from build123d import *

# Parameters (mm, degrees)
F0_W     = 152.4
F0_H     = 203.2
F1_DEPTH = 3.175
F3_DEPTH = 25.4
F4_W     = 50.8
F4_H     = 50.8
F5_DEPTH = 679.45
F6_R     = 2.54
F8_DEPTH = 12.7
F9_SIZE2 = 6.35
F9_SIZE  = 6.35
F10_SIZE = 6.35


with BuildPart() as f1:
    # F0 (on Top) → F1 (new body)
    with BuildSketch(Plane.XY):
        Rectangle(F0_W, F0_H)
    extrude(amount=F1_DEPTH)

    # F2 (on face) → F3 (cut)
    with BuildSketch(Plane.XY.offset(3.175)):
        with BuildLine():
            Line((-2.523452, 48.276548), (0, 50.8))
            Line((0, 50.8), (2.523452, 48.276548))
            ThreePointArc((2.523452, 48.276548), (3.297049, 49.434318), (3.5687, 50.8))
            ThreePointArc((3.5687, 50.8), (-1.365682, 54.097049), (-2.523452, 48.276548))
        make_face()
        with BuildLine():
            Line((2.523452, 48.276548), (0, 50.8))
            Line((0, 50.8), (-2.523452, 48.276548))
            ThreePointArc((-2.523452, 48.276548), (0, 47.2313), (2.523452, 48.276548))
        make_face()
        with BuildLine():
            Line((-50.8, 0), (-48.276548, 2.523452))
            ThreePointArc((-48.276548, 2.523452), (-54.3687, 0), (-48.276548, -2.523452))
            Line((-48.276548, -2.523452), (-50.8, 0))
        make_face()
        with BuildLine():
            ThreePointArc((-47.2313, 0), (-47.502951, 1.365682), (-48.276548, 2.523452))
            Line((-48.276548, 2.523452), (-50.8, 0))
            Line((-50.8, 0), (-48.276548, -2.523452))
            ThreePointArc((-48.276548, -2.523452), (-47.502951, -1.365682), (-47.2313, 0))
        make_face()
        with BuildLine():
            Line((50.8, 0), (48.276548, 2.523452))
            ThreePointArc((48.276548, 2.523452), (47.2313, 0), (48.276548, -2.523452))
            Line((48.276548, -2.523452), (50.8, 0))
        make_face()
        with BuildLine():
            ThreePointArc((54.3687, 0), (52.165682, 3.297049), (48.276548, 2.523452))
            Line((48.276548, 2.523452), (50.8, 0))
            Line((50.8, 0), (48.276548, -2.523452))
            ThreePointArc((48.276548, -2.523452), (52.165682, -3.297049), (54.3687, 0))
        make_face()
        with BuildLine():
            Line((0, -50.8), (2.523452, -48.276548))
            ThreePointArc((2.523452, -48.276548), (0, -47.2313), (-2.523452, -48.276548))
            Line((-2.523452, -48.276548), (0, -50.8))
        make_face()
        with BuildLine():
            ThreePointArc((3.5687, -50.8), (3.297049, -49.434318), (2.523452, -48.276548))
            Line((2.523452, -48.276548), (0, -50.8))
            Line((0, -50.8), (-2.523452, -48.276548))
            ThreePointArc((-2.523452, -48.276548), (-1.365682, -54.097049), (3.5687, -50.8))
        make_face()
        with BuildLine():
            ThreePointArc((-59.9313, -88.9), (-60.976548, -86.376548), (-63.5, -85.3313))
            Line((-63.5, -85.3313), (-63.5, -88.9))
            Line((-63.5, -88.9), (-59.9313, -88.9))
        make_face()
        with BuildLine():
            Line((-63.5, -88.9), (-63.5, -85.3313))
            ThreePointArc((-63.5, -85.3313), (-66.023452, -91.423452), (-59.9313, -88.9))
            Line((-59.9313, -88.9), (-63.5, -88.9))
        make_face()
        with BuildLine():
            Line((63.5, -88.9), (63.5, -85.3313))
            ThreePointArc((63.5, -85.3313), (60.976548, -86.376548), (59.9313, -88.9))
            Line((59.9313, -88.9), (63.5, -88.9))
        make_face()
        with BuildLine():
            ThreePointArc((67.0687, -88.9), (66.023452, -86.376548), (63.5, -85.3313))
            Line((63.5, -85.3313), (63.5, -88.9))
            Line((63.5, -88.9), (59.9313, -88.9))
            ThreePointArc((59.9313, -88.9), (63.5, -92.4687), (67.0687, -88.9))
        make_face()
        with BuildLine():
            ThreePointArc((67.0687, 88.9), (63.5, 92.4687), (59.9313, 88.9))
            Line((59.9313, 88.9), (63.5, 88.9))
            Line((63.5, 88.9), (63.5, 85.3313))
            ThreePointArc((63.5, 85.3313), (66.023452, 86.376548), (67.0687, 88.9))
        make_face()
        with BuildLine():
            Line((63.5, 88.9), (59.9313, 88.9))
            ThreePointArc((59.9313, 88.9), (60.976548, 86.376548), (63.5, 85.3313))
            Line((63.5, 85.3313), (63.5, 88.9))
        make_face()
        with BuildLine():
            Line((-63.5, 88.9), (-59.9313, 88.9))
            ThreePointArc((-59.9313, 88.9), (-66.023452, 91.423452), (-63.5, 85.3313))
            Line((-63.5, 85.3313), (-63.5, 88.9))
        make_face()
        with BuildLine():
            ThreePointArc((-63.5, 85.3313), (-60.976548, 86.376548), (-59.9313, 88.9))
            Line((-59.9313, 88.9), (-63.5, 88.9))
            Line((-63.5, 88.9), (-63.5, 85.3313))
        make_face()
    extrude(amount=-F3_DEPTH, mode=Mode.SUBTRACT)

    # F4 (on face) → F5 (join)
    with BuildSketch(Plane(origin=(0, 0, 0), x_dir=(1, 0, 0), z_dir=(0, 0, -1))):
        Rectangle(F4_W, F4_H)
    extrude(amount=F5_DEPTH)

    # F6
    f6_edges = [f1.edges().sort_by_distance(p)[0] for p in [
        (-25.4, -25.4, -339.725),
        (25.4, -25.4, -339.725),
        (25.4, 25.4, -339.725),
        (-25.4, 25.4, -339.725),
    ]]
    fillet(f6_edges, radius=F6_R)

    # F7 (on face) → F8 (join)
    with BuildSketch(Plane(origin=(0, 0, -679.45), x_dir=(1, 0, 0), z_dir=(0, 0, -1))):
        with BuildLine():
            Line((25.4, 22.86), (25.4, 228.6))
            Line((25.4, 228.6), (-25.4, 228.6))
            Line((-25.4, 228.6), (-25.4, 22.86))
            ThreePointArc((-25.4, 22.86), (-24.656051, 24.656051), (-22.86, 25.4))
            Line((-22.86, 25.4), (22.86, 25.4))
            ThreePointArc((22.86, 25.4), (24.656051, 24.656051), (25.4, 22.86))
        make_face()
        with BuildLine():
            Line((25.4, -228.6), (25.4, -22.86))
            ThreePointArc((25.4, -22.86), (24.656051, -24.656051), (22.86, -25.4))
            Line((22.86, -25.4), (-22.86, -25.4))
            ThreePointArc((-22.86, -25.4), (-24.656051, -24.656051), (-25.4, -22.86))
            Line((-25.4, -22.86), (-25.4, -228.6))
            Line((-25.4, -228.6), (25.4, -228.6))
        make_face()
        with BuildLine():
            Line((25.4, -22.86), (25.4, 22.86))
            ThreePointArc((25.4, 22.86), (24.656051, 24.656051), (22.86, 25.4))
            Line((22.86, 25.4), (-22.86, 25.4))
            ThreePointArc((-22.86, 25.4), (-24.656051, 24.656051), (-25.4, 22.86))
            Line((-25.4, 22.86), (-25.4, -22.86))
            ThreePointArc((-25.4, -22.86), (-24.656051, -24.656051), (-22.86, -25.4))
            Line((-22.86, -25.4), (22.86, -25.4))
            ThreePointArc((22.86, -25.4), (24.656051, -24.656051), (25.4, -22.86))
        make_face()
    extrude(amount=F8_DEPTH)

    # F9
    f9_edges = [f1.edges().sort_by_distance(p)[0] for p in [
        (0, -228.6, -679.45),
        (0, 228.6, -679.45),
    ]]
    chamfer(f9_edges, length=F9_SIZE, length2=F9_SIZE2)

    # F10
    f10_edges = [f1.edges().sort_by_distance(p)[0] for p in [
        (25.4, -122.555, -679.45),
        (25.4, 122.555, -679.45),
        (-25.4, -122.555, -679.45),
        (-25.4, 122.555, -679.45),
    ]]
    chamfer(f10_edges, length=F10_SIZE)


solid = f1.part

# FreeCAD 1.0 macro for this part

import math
import FreeCAD as App
import Part
import Sketcher
from FreeCAD import Vector
Q = App.Units.Quantity


def edges_at(feature, points):
    """Names of the edges that pass closest to the given points."""
    edges = feature.Shape.Edges
    near = lambda p: min(range(len(edges)), key=lambda i: edges[i].distToShape(Part.Vertex(*p))[0])
    return sorted({f"Edge{near(p) + 1}" for p in points})


def add_polygon(sketch, points):
    """Adds a closed chain of lines whose ends are joined by coincident constraints."""
    first, n = sketch.GeometryCount, len(points)
    for a, b in zip(points, points[1:] + points[:1]):
        sketch.addGeometry(Part.LineSegment(App.Vector(*a, 0), App.Vector(*b, 0)), False)
    for i in range(n):
        sketch.addConstraint(Sketcher.Constraint("Coincident", first + i, 2, first + (i + 1) % n, 1))

doc = App.newDocument("Part")
params = doc.addObject("Spreadsheet::Sheet", "Params")
for row, (alias, value) in enumerate([
    ("sketch1_width", "6 in"),
    ("sketch1_height", "8 in"),
    ("pad1_length", "0.125 in"),
    ("pocket1_length", "1 in"),
    ("sketch3_width", "2 in"),
    ("pad2_length", "26.75 in"),
    ("fillet_radius", "0.1 in"),
    ("sketch4_width", "2 in"),
    ("sketch4_height", "18 in"),
    ("pad3_length", "0.5 in"),
    ("chamfer_size", "0.25 in"),
    ("chamfer_size2", "0.25 in"),
    ("chamfer2_size", "0.25 in"),
], start=1):
    params.set(f"A{row}", alias)
    params.set(f"B{row}", "=" + value)
    params.setAlias(f"B{row}", alias)

body = doc.addObject("PartDesign::Body", "Body")

# Sketch on XY plane
sketch1 = body.newObject("Sketcher::SketchObject", "Sketch")
sketch1.AttachmentSupport = (doc.getObject("XY_Plane"), [""])
sketch1.MapMode = "FlatFace"
add_polygon(sketch1, [(-76, 102), (-76, -102), (76, -102), (76, 102)])  # lines 0-3
sketch1.addConstraint(Sketcher.Constraint("Vertical", 0))
sketch1.addConstraint(Sketcher.Constraint("Horizontal", 1))
sketch1.addConstraint(Sketcher.Constraint("Vertical", 2))
sketch1.addConstraint(Sketcher.Constraint("Horizontal", 3))
sketch1.addConstraint(Sketcher.Constraint("Symmetric", 0, 2, 2, 2, -1, 1))
sketch1.addConstraint(Sketcher.Constraint("DistanceX", 1, 1, 1, 2, Q("6 in")))
sketch1.addConstraint(Sketcher.Constraint("DistanceY", 0, 2, 0, 1, Q("8 in")))
sketch1.setExpression("Constraints[9]", "Params.sketch1_width")
sketch1.setExpression("Constraints[10]", "Params.sketch1_height")
pad1 = body.newObject("PartDesign::Pad", "Pad")
pad1.Profile = sketch1
pad1.setExpression("Length", "Params.pad1_length")

# Sketch on XY plane
sketch2 = body.newObject("Sketcher::SketchObject", "Sketch001")
sketch2.AttachmentSupport = (doc.getObject("XY_Plane"), [""])
sketch2.MapMode = "FlatFace"
sketch2.AttachmentOffset = App.Placement(Vector(0, 0, 0.125 * 25.4), App.Rotation())
sketch2.addGeometry(Part.ArcOfCircle(Part.Circle(Vector(0, 50.8, 0), Vector(0, 0, 1), 3.6), math.radians(-45), math.radians(0)), False)
sketch2.addGeometry(Part.ArcOfCircle(Part.Circle(Vector(0, 50.8, 0), Vector(0, 0, 1), 3.6), math.radians(0), math.radians(225)), False)
sketch2.addGeometry(Part.ArcOfCircle(Part.Circle(Vector(0, 50.8, 0), Vector(0, 0, 1), 3.6), math.radians(-135), math.radians(-45)), False)
sketch2.addGeometry(Part.ArcOfCircle(Part.Circle(Vector(-50.8, 0, 0), Vector(0, 0, 1), 3.6), math.radians(45), math.radians(315)), False)
sketch2.addGeometry(Part.ArcOfCircle(Part.Circle(Vector(-50.8, 0, 0), Vector(0, 0, 1), 3.6), math.radians(-45), math.radians(0)), False)
sketch2.addGeometry(Part.ArcOfCircle(Part.Circle(Vector(-50.8, 0, 0), Vector(0, 0, 1), 3.6), math.radians(0), math.radians(45)), False)
sketch2.addGeometry(Part.ArcOfCircle(Part.Circle(Vector(50.8, 0, 0), Vector(0, 0, 1), 3.6), math.radians(135), math.radians(225)), False)
sketch2.addGeometry(Part.ArcOfCircle(Part.Circle(Vector(50.8, 0, 0), Vector(0, 0, 1), 3.6), math.radians(-135), math.radians(0)), False)
sketch2.addGeometry(Part.ArcOfCircle(Part.Circle(Vector(50.8, 0, 0), Vector(0, 0, 1), 3.6), math.radians(0), math.radians(135)), False)
sketch2.addGeometry(Part.ArcOfCircle(Part.Circle(Vector(0, -50.8, 0), Vector(0, 0, 1), 3.6), math.radians(45), math.radians(135)), False)
sketch2.addGeometry(Part.ArcOfCircle(Part.Circle(Vector(0, -50.8, 0), Vector(0, 0, 1), 3.6), math.radians(135), math.radians(360)), False)
sketch2.addGeometry(Part.ArcOfCircle(Part.Circle(Vector(0, -50.8, 0), Vector(0, 0, 1), 3.6), math.radians(0), math.radians(45)), False)
sketch2.addGeometry(Part.ArcOfCircle(Part.Circle(Vector(-63.5, -88.9, 0), Vector(0, 0, 1), 3.6), math.radians(0), math.radians(90)), False)
sketch2.addGeometry(Part.ArcOfCircle(Part.Circle(Vector(-63.5, -88.9, 0), Vector(0, 0, 1), 3.6), math.radians(90), math.radians(360)), False)
sketch2.addGeometry(Part.ArcOfCircle(Part.Circle(Vector(63.5, -88.9, 0), Vector(0, 0, 1), 3.6), math.radians(90), math.radians(180)), False)
sketch2.addGeometry(Part.ArcOfCircle(Part.Circle(Vector(63.5, -88.9, 0), Vector(0, 0, 1), 3.6), math.radians(180), math.radians(360)), False)
sketch2.addGeometry(Part.ArcOfCircle(Part.Circle(Vector(63.5, -88.9, 0), Vector(0, 0, 1), 3.6), math.radians(0), math.radians(90)), False)
sketch2.addGeometry(Part.ArcOfCircle(Part.Circle(Vector(63.5, 88.9, 0), Vector(0, 0, 1), 3.6), math.radians(0), math.radians(180)), False)
sketch2.addGeometry(Part.ArcOfCircle(Part.Circle(Vector(63.5, 88.9, 0), Vector(0, 0, 1), 3.6), math.radians(180), math.radians(270)), False)
sketch2.addGeometry(Part.ArcOfCircle(Part.Circle(Vector(63.5, 88.9, 0), Vector(0, 0, 1), 3.6), math.radians(-90), math.radians(0)), False)
sketch2.addGeometry(Part.ArcOfCircle(Part.Circle(Vector(-63.5, 88.9, 0), Vector(0, 0, 1), 3.6), math.radians(0), math.radians(270)), False)
sketch2.addGeometry(Part.ArcOfCircle(Part.Circle(Vector(-63.5, 88.9, 0), Vector(0, 0, 1), 3.6), math.radians(-90), math.radians(0)), False)
sketch2.addConstraint(Sketcher.Constraint("Tangent", 0, 2, 1, 1))
sketch2.addConstraint(Sketcher.Constraint("Tangent", 1, 2, 2, 1))
sketch2.addConstraint(Sketcher.Constraint("Tangent", 2, 2, 0, 1))
sketch2.addConstraint(Sketcher.Constraint("Tangent", 3, 2, 4, 1))
sketch2.addConstraint(Sketcher.Constraint("Tangent", 4, 2, 5, 1))
sketch2.addConstraint(Sketcher.Constraint("Tangent", 5, 2, 3, 1))
sketch2.addConstraint(Sketcher.Constraint("Tangent", 6, 2, 7, 1))
sketch2.addConstraint(Sketcher.Constraint("Tangent", 7, 2, 8, 1))
sketch2.addConstraint(Sketcher.Constraint("Tangent", 8, 2, 6, 1))
sketch2.addConstraint(Sketcher.Constraint("Tangent", 9, 2, 10, 1))
sketch2.addConstraint(Sketcher.Constraint("Tangent", 10, 2, 11, 1))
sketch2.addConstraint(Sketcher.Constraint("Tangent", 11, 2, 9, 1))
sketch2.addConstraint(Sketcher.Constraint("Tangent", 12, 1, 13, 2))
sketch2.addConstraint(Sketcher.Constraint("Coincident", 13, 1, 12, 2))
sketch2.addConstraint(Sketcher.Constraint("Tangent", 14, 2, 15, 1))
sketch2.addConstraint(Sketcher.Constraint("Tangent", 15, 2, 16, 1))
sketch2.addConstraint(Sketcher.Constraint("Tangent", 16, 2, 14, 1))
sketch2.addConstraint(Sketcher.Constraint("Tangent", 17, 2, 18, 1))
sketch2.addConstraint(Sketcher.Constraint("Tangent", 18, 2, 19, 1))
sketch2.addConstraint(Sketcher.Constraint("Tangent", 19, 2, 17, 1))
sketch2.addConstraint(Sketcher.Constraint("Tangent", 20, 1, 21, 2))
sketch2.addConstraint(Sketcher.Constraint("Coincident", 21, 1, 20, 2))
sketch2.addConstraint(Sketcher.Constraint("Equal", 2, 3))
sketch2.addConstraint(Sketcher.Constraint("Equal", 5, 6))
sketch2.addConstraint(Sketcher.Constraint("Equal", 8, 9))
sketch2.addConstraint(Sketcher.Constraint("Equal", 11, 12))
sketch2.addConstraint(Sketcher.Constraint("Equal", 13, 14))
sketch2.addConstraint(Sketcher.Constraint("Equal", 16, 17))
sketch2.addConstraint(Sketcher.Constraint("Equal", 19, 20))
sketch2.addConstraint(Sketcher.Constraint("Symmetric", 3, 3, 6, 3, -1, 1))
sketch2.addConstraint(Sketcher.Constraint("Symmetric", 0, 3, 9, 3, -1, 1))
sketch2.addConstraint(Sketcher.Constraint("Symmetric", 12, 3, 17, 3, -1, 1))
sketch2.addConstraint(Sketcher.Constraint("Symmetric", 14, 3, 20, 3, -1, 1))
sketch2.addConstraint(Sketcher.Constraint("Symmetric", 12, 3, 14, 3, -2))
sketch2.addConstraint(Sketcher.Constraint("Symmetric", 1, 2, 2, 2, -2))
sketch2.addConstraint(Sketcher.Constraint("Symmetric", 3, 2, 6, 2, -2))
sketch2.addConstraint(Sketcher.Constraint("PointOnObject", 4, 2, -1))
sketch2.addConstraint(Sketcher.Constraint("PointOnObject", 7, 2, -1))
sketch2.addConstraint(Sketcher.Constraint("Horizontal", 2, 3, 0, 2))
sketch2.addConstraint(Sketcher.Constraint("Horizontal", 5, 2, 8, 2))
sketch2.addConstraint(Sketcher.Constraint("Horizontal", 11, 3, 10, 2))
sketch2.addConstraint(Sketcher.Constraint("Horizontal", 9, 2, 11, 2))
sketch2.addConstraint(Sketcher.Constraint("Horizontal", 16, 3, 12, 1))
sketch2.addConstraint(Sketcher.Constraint("Horizontal", 12, 1, 14, 2))
sketch2.addConstraint(Sketcher.Constraint("Horizontal", 14, 2, 15, 2))
sketch2.addConstraint(Sketcher.Constraint("Horizontal", 21, 3, 17, 2))
sketch2.addConstraint(Sketcher.Constraint("Horizontal", 17, 2, 19, 2))
sketch2.addConstraint(Sketcher.Constraint("Horizontal", 19, 2, 20, 1))
sketch2.addConstraint(Sketcher.Constraint("Vertical", 3, 2, 5, 2))
sketch2.addConstraint(Sketcher.Constraint("Vertical", 1, 2, 9, 2))
sketch2.addConstraint(Sketcher.Constraint("Vertical", 21, 3, 13, 1))
sketch2.addConstraint(Sketcher.Constraint("Vertical", 19, 3, 16, 2))
sketch2.addConstraint(Sketcher.Constraint("Vertical", 16, 2, 18, 2))
sketch2.addConstraint(Sketcher.Constraint("Vertical", 13, 1, 21, 1))
sketch2.addConstraint(Sketcher.Constraint("DistanceY", -1, 1, 0, 3, Q("2 in")))
sketch2.addConstraint(Sketcher.Constraint("DistanceX", 3, 3, -1, 1, Q("2 in")))
sketch2.addConstraint(Sketcher.Constraint("DistanceX", 12, 3, -1, 1, Q("2.5 in")))
sketch2.addConstraint(Sketcher.Constraint("DistanceY", 12, 3, -1, 1, Q("3.5 in")))
sketch2.addConstraint(Sketcher.Constraint("Radius", 0, Q("0.1405 in")))
sketch2.addConstraint(Sketcher.Constraint("DistanceX", 1, 2, -1, 1, 2.523452))
sketch2.addConstraint(Sketcher.Constraint("DistanceX", 3, 3, 3, 2, 2.523452))
pocket1 = body.newObject("PartDesign::Pocket", "Pocket")
pocket1.Profile = sketch2
pocket1.setExpression("Length", "Params.pocket1_length")

# Sketch on XY plane
sketch3 = body.newObject("Sketcher::SketchObject", "Sketch002")
sketch3.AttachmentSupport = (doc.getObject("XY_Plane"), [""])
sketch3.MapMode = "FlatFace"
add_polygon(sketch3, [(-25, -25), (-25, 25), (25, 25), (25, -25)])  # lines 0-3
sketch3.addConstraint(Sketcher.Constraint("Vertical", 0))
sketch3.addConstraint(Sketcher.Constraint("Horizontal", 1))
sketch3.addConstraint(Sketcher.Constraint("Vertical", 2))
sketch3.addConstraint(Sketcher.Constraint("Horizontal", 3))
sketch3.addConstraint(Sketcher.Constraint("Symmetric", 0, 2, 2, 2, -1, 1))
sketch3.addConstraint(Sketcher.Constraint("Equal", 3, 0))
sketch3.addConstraint(Sketcher.Constraint("DistanceX", 1, 1, 1, 2, Q("2 in")))
sketch3.setExpression("Constraints[10]", "Params.sketch3_width")
pad2 = body.newObject("PartDesign::Pad", "Pad001")
pad2.Profile = sketch3
pad2.setExpression("Length", "Params.pad2_length")
pad2.Reversed = True
doc.recompute()

fillet = body.newObject("PartDesign::Fillet", "Fillet")
fillet.Base = (pad2, edges_at(pad2, [
    (-25.4, -25.4, -339.725),
    (25.4, -25.4, -339.725),
    (25.4, 25.4, -339.725),
    (-25.4, 25.4, -339.725),
]))
fillet.setExpression("Radius", "Params.fillet_radius")

# Sketch on XY plane
sketch4 = body.newObject("Sketcher::SketchObject", "Sketch003")
sketch4.AttachmentSupport = (doc.getObject("XY_Plane"), [""])
sketch4.MapMode = "FlatFace"
sketch4.AttachmentOffset = App.Placement(Vector(0, 0, -26.75 * 25.4), App.Rotation())
add_polygon(sketch4, [(25, -229), (-25, -229), (-25, 229), (25, 229)])  # lines 0-3
sketch4.addConstraint(Sketcher.Constraint("Horizontal", 0))
sketch4.addConstraint(Sketcher.Constraint("Vertical", 1))
sketch4.addConstraint(Sketcher.Constraint("Horizontal", 2))
sketch4.addConstraint(Sketcher.Constraint("Vertical", 3))
sketch4.addConstraint(Sketcher.Constraint("Symmetric", 0, 2, 2, 2, -1, 1))
sketch4.addConstraint(Sketcher.Constraint("DistanceX", 0, 2, 0, 1, Q("2 in")))
sketch4.addConstraint(Sketcher.Constraint("DistanceY", 1, 1, 1, 2, Q("18 in")))
sketch4.setExpression("Constraints[9]", "Params.sketch4_width")
sketch4.setExpression("Constraints[10]", "Params.sketch4_height")
pad3 = body.newObject("PartDesign::Pad", "Pad002")
pad3.Profile = sketch4
pad3.setExpression("Length", "Params.pad3_length")
pad3.Reversed = True
doc.recompute()

chamfer = body.newObject("PartDesign::Chamfer", "Chamfer")
chamfer.Base = (pad3, edges_at(pad3, [(0, -228.6, -679.45), (0, 228.6, -679.45)]))
chamfer.ChamferType = "Two distances"
chamfer.setExpression("Size", "Params.chamfer_size")
chamfer.setExpression("Size2", "Params.chamfer_size2")
doc.recompute()

chamfer2 = body.newObject("PartDesign::Chamfer", "Chamfer001")
chamfer2.Base = (chamfer, edges_at(chamfer, [
    (25.4, -122.555, -679.45),
    (25.4, 122.555, -679.45),
    (-25.4, -122.555, -679.45),
    (-25.4, 122.555, -679.45),
]))
chamfer2.setExpression("Size", "Params.chamfer2_size")

doc.recompute()
